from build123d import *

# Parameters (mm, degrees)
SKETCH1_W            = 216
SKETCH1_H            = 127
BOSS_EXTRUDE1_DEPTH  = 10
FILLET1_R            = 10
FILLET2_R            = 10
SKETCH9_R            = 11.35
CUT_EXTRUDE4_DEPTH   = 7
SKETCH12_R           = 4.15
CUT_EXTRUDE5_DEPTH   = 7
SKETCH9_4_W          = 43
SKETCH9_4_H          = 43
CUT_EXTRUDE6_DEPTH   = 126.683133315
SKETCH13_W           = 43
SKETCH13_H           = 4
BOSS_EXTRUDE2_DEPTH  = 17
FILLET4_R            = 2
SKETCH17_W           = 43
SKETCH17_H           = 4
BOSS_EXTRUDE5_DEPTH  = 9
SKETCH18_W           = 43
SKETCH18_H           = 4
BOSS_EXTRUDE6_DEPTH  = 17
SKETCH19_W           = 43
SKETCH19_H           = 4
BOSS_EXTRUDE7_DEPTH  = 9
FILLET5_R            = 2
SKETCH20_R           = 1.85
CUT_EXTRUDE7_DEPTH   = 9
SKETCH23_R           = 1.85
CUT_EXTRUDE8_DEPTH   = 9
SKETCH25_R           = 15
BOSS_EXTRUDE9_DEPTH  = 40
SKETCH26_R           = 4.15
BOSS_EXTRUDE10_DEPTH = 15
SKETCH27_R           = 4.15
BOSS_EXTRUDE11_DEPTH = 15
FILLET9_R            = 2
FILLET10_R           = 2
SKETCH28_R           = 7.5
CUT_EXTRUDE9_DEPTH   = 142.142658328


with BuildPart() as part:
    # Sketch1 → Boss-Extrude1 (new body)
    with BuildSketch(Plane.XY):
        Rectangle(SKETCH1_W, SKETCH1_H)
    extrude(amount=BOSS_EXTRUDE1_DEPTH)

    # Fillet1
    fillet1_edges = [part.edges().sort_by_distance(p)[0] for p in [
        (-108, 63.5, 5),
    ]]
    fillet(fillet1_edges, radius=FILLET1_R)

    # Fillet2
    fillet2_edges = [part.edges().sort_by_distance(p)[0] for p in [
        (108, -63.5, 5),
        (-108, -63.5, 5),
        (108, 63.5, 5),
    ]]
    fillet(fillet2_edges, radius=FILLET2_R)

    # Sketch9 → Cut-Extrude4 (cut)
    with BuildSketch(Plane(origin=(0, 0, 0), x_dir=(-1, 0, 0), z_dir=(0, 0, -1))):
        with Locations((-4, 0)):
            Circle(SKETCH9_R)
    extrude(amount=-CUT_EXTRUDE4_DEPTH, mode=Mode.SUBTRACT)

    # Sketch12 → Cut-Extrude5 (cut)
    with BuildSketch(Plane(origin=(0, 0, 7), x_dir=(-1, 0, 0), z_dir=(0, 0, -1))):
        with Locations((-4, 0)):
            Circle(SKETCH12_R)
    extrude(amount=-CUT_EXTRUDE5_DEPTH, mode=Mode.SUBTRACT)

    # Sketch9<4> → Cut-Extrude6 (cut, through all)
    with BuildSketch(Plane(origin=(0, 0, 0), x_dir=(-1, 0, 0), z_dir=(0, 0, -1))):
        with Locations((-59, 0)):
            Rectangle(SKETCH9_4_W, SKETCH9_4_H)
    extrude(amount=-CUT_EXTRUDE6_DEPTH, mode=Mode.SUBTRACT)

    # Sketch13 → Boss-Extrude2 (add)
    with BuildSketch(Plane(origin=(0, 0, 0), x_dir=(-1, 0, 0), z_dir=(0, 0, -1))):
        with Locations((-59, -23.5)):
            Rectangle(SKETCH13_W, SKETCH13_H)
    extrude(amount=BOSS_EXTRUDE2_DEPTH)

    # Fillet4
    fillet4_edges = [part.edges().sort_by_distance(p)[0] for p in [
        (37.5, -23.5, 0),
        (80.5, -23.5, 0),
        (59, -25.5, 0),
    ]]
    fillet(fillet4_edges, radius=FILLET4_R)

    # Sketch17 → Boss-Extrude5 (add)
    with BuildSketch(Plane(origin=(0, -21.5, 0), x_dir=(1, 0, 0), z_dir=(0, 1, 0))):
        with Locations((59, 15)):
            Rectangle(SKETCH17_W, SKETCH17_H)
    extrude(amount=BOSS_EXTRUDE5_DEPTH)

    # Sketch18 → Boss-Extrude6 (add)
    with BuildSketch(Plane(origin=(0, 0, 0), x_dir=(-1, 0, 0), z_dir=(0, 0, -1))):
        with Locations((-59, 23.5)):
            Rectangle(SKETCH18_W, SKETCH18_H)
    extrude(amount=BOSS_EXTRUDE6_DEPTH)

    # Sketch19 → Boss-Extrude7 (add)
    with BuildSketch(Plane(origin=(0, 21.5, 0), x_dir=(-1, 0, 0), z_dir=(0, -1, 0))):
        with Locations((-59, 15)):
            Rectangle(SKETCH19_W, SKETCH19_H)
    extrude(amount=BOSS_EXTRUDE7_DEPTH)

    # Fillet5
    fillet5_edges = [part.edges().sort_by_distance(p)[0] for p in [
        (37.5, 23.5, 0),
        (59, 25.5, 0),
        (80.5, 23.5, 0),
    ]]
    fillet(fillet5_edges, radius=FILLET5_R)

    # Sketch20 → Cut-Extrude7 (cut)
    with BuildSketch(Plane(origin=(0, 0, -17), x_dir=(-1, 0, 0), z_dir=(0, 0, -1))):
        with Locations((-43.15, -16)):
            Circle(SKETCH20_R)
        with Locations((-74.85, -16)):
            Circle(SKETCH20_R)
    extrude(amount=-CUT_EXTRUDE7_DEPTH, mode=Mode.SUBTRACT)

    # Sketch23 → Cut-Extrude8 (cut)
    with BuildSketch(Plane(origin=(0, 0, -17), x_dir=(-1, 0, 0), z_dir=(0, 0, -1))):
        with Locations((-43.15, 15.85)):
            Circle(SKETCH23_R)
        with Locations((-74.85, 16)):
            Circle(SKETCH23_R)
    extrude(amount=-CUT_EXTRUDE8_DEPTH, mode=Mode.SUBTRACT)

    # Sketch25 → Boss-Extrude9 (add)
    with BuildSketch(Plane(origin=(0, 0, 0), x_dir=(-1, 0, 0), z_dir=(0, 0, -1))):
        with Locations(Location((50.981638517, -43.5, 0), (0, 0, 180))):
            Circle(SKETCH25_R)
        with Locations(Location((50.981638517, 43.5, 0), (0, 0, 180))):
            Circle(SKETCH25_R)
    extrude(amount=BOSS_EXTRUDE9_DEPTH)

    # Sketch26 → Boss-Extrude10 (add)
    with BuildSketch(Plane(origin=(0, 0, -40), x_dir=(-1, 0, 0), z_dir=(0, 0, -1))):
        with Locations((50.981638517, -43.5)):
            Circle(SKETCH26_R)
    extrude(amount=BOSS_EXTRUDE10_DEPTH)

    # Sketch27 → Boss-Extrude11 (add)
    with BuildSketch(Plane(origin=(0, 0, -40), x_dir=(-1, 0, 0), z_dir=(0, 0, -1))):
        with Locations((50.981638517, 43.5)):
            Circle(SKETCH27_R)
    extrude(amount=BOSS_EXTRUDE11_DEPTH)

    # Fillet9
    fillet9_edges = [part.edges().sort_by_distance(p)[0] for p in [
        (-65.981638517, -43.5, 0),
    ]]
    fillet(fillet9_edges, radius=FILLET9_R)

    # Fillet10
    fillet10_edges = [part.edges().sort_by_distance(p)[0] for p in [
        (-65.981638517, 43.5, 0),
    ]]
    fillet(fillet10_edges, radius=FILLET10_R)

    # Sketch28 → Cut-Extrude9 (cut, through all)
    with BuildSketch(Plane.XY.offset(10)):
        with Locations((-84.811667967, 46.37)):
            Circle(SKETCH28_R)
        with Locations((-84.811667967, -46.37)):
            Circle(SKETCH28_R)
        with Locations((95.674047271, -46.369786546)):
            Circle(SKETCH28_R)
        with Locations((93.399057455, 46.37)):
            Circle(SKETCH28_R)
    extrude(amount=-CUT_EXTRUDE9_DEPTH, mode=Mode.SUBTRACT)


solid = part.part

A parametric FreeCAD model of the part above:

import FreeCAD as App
import Part
import Sketcher

V = App.Vector
Q = App.Units.Quantity


def edges_at(feature, points):
    """Names of the edges that pass closest to the given points."""
    edges = feature.Shape.Edges
    near = lambda p: min(range(len(edges)), key=lambda i: edges[i].distToShape(Part.Vertex(*p))[0])
    return sorted({f"Edge{near(p) + 1}" for p in points})

doc = App.newDocument("Part")
body = doc.addObject("PartDesign::Body", "Body")

# Sketch on XY plane
sketch1 = doc.addObject("Sketcher::SketchObject", "Sketch")
body.addObject(sketch1)
sketch1.AttachmentSupport = (doc.XY_Plane, [""])
sketch1.MapMode = "FlatFace"
sketch1.addGeometry([
    Part.LineSegment(V(-108, 64, 0), V(-108, -64, 0)),
    Part.LineSegment(V(-108, -64, 0), V(108, -64, 0)),
    Part.LineSegment(V(108, -64, 0), V(108, 64, 0)),
    Part.LineSegment(V(108, 64, 0), V(-108, 64, 0)),
], False)
sketch1.addConstraint([
    Sketcher.Constraint("Coincident", 0, 2, 1, 1),
    Sketcher.Constraint("Coincident", 1, 2, 2, 1),
    Sketcher.Constraint("Coincident", 2, 2, 3, 1),
    Sketcher.Constraint("Coincident", 3, 2, 0, 1),
    Sketcher.Constraint("Vertical", 0),
    Sketcher.Constraint("Horizontal", 1),
    Sketcher.Constraint("Vertical", 2),
    Sketcher.Constraint("Horizontal", 3),
    Sketcher.Constraint("Symmetric", 0, 2, 2, 2, -1, 1),
    Sketcher.Constraint("DistanceX", 1, 1, 1, 2, Q("216 mm")),
    Sketcher.Constraint("DistanceY", 0, 2, 0, 1, Q("127 mm")),
])
pad1 = doc.addObject("PartDesign::Pad", "Pad")
body.addObject(pad1)
pad1.Profile = sketch1
pad1.Length = 10
doc.recompute()

fillet = doc.addObject("PartDesign::Fillet", "Fillet")
body.addObject(fillet)
fillet.Base = (pad1, edges_at(pad1, [(-108, 63.5, 5)]))
fillet.Radius = 10
doc.recompute()

fillet2 = doc.addObject("PartDesign::Fillet", "Fillet001")
body.addObject(fillet2)
fillet2.Base = (fillet, edges_at(fillet, [(108, -63.5, 5), (-108, -63.5, 5), (108, 63.5, 5)]))
fillet2.Radius = 10

# Sketch on XY plane
sketch2 = doc.addObject("Sketcher::SketchObject", "Sketch001")
body.addObject(sketch2)
sketch2.AttachmentSupport = (doc.XY_Plane, [""])
sketch2.MapMode = "FlatFace"
sketch2.addGeometry(Part.Circle(V(4, 0, 0), V(0, 0, 1), 11), False)
sketch2.addConstraint([
    Sketcher.Constraint("PointOnObject", 0, 3, -1),
    Sketcher.Constraint("Diameter", 0, Q("22.7 mm")),
    Sketcher.Constraint("DistanceX", -1, 1, 0, 3, Q("4 mm")),
])
pocket1 = doc.addObject("PartDesign::Pocket", "Pocket")
body.addObject(pocket1)
pocket1.Profile = sketch2
pocket1.Length = 7
pocket1.Reversed = True

# Sketch on XY plane
sketch3 = doc.addObject("Sketcher::SketchObject", "Sketch002")
body.addObject(sketch3)
sketch3.AttachmentSupport = (doc.XY_Plane, [""])
sketch3.MapMode = "FlatFace"
sketch3.AttachmentOffset = App.Placement(V(0, 0, 7), App.Rotation())
sketch3.addGeometry(Part.Circle(V(4, 0, 0), V(0, 0, 1), 4.2), False)
sketch3.addConstraint([
    Sketcher.Constraint("PointOnObject", 0, 3, -1),
    Sketcher.Constraint("Diameter", 0, Q("8.3 mm")),
    Sketcher.Constraint("DistanceX", -1, 1, 0, 3, Q("4 mm")),
])
pocket2 = doc.addObject("PartDesign::Pocket", "Pocket001")
body.addObject(pocket2)
pocket2.Profile = sketch3
pocket2.Length = 7
pocket2.Reversed = True

# Sketch on XY plane
sketch4 = doc.addObject("Sketcher::SketchObject", "Sketch003")
body.addObject(sketch4)
sketch4.AttachmentSupport = (doc.XY_Plane, [""])
sketch4.MapMode = "FlatFace"
sketch4.addGeometry([
    Part.LineSegment(V(80, 22, 0), V(80, -22, 0)),
    Part.LineSegment(V(80, -22, 0), V(38, -22, 0)),
    Part.LineSegment(V(38, -22, 0), V(38, 22, 0)),
    Part.LineSegment(V(38, 22, 0), V(80, 22, 0)),
], False)
sketch4.addConstraint([
    Sketcher.Constraint("Coincident", 0, 2, 1, 1),
    Sketcher.Constraint("Coincident", 1, 2, 2, 1),
    Sketcher.Constraint("Coincident", 2, 2, 3, 1),
    Sketcher.Constraint("Coincident", 3, 2, 0, 1),
    Sketcher.Constraint("Vertical", 0),
    Sketcher.Constraint("Horizontal", 1),
    Sketcher.Constraint("Vertical", 2),
    Sketcher.Constraint("Horizontal", 3),
    Sketcher.Constraint("Equal", 3, 0),
    Sketcher.Constraint("DistanceX", 1, 2, 1, 1, Q("43 mm")),
    Sketcher.Constraint("DistanceX", -1, 1, 0, 2, Q("80.5 mm")),
    Sketcher.Constraint("DistanceY", 0, 2, -1, 1, Q("21.5 mm")),
])
pocket3 = doc.addObject("PartDesign::Pocket", "Pocket002")
body.addObject(pocket3)
pocket3.Profile = sketch4
pocket3.Type = "ThroughAll"
pocket3.Reversed = True

# Sketch on XY plane
sketch5 = doc.addObject("Sketcher::SketchObject", "Sketch004")
body.addObject(sketch5)
sketch5.AttachmentSupport = (doc.XY_Plane, [""])
sketch5.MapMode = "FlatFace"
sketch5.addGeometry([
    Part.LineSegment(V(80.5, -21.5, 0), V(80.5, -25.5, 0)),
    Part.LineSegment(V(80.5, -25.5, 0), V(37.5, -25.5, 0)),
    Part.LineSegment(V(37.5, -25.5, 0), V(37.5, -21.5, 0)),
    Part.LineSegment(V(37.5, -21.5, 0), V(80.5, -21.5, 0)),
], False)
sketch5.addConstraint([
    Sketcher.Constraint("Coincident", 0, 2, 1, 1),
    Sketcher.Constraint("Coincident", 1, 2, 2, 1),
    Sketcher.Constraint("Coincident", 2, 2, 3, 1),
    Sketcher.Constraint("Coincident", 3, 2, 0, 1),
    Sketcher.Constraint("Vertical", 0),
    Sketcher.Constraint("Horizontal", 1),
    Sketcher.Constraint("Vertical", 2),
    Sketcher.Constraint("Horizontal", 3),
    Sketcher.Constraint("DistanceX", 1, 2, 1, 1, Q("43 mm")),
    Sketcher.Constraint("DistanceY", 0, 2, 0, 1, Q("4 mm")),
    Sketcher.Constraint("DistanceX", -1, 1, 0, 2, Q("80.5 mm")),
    Sketcher.Constraint("DistanceY", 0, 2, -1, 1, Q("25.5 mm")),
])
pad2 = doc.addObject("PartDesign::Pad", "Pad001")
body.addObject(pad2)
pad2.Profile = sketch5
pad2.Length = 17
pad2.Reversed = True
doc.recompute()

fillet3 = doc.addObject("PartDesign::Fillet", "Fillet002")
body.addObject(fillet3)
fillet3.Base = (pad2, edges_at(pad2, [(37.5, -23.5, 0), (80.5, -23.5, 0), (59, -25.5, 0)]))
fillet3.Radius = 2

# Sketch on XZ plane
sketch6 = doc.addObject("Sketcher::SketchObject", "Sketch005")
body.addObject(sketch6)
sketch6.AttachmentSupport = (doc.XZ_Plane, [""])
sketch6.MapMode = "FlatFace"
sketch6.AttachmentOffset = App.Placement(V(0, 0, 21.5), App.Rotation())
sketch6.addGeometry([
    Part.LineSegment(V(37.5, -17, 0), V(37.5, -13, 0)),
    Part.LineSegment(V(37.5, -13, 0), V(80.5, -13, 0)),
    Part.LineSegment(V(80.5, -13, 0), V(80.5, -17, 0)),
    Part.LineSegment(V(80.5, -17, 0), V(37.5, -17, 0)),
], False)
sketch6.addConstraint([
    Sketcher.Constraint("Coincident", 0, 2, 1, 1),
    Sketcher.Constraint("Coincident", 1, 2, 2, 1),
    Sketcher.Constraint("Coincident", 2, 2, 3, 1),
    Sketcher.Constraint("Coincident", 3, 2, 0, 1),
    Sketcher.Constraint("Vertical", 0),
    Sketcher.Constraint("Horizontal", 1),
    Sketcher.Constraint("Vertical", 2),
    Sketcher.Constraint("Horizontal", 3),
    Sketcher.Constraint("DistanceX", 1, 1, 1, 2, Q("43 mm")),
    Sketcher.Constraint("DistanceY", 0, 1, 0, 2, Q("4 mm")),
    Sketcher.Constraint("DistanceY", 0, 2, -1, 1, Q("13 mm")),
    Sketcher.Constraint("DistanceX", -1, 1, 0, 2, Q("37.5 mm")),
])
pad3 = doc.addObject("PartDesign::Pad", "Pad002")
body.addObject(pad3)
pad3.Profile = sketch6
pad3.Length = 9
pad3.Reversed = True

# Sketch on XY plane
sketch7 = doc.addObject("Sketcher::SketchObject", "Sketch006")
body.addObject(sketch7)
sketch7.AttachmentSupport = (doc.XY_Plane, [""])
sketch7.MapMode = "FlatFace"
sketch7.addGeometry([
    Part.LineSegment(V(80.5, 25.5, 0), V(80.5, 21.5, 0)),
    Part.LineSegment(V(80.5, 21.5, 0), V(37.5, 21.5, 0)),
    Part.LineSegment(V(37.5, 21.5, 0), V(37.5, 25.5, 0)),
    Part.LineSegment(V(37.5, 25.5, 0), V(80.5, 25.5, 0)),
], False)
sketch7.addConstraint([
    Sketcher.Constraint("Coincident", 0, 2, 1, 1),
    Sketcher.Constraint("Coincident", 1, 2, 2, 1),
    Sketcher.Constraint("Coincident", 2, 2, 3, 1),
    Sketcher.Constraint("Coincident", 3, 2, 0, 1),
    Sketcher.Constraint("Vertical", 0),
    Sketcher.Constraint("Horizontal", 1),
    Sketcher.Constraint("Vertical", 2),
    Sketcher.Constraint("Horizontal", 3),
    Sketcher.Constraint("DistanceX", 1, 2, 1, 1, Q("43 mm")),
    Sketcher.Constraint("DistanceY", 0, 2, 0, 1, Q("4 mm")),
    Sketcher.Constraint("DistanceX", -1, 1, 0, 2, Q("80.5 mm")),
    Sketcher.Constraint("DistanceY", -1, 1, 0, 2, Q("21.5 mm")),
])
pad4 = doc.addObject("PartDesign::Pad", "Pad003")
body.addObject(pad4)
pad4.Profile = sketch7
pad4.Length = 17
pad4.Reversed = True

# Sketch on XZ plane
sketch8 = doc.addObject("Sketcher::SketchObject", "Sketch007")
body.addObject(sketch8)
sketch8.AttachmentSupport = (doc.XZ_Plane, [""])
sketch8.MapMode = "FlatFace"
sketch8.AttachmentOffset = App.Placement(V(0, 0, -21.5), App.Rotation())
sketch8.addGeometry([
    Part.LineSegment(V(80.5, -17, 0), V(80.5, -13, 0)),
    Part.LineSegment(V(80.5, -13, 0), V(37.5, -13, 0)),
    Part.LineSegment(V(37.5, -13, 0), V(37.5, -17, 0)),
    Part.LineSegment(V(37.5, -17, 0), V(80.5, -17, 0)),
], False)
sketch8.addConstraint([
    Sketcher.Constraint("Coincident", 0, 2, 1, 1),
    Sketcher.Constraint("Coincident", 1, 2, 2, 1),
    Sketcher.Constraint("Coincident", 2, 2, 3, 1),
    Sketcher.Constraint("Coincident", 3, 2, 0, 1),
    Sketcher.Constraint("Vertical", 0),
    Sketcher.Constraint("Horizontal", 1),
    Sketcher.Constraint("Vertical", 2),
    Sketcher.Constraint("Horizontal", 3),
    Sketcher.Constraint("DistanceX", 1, 2, 1, 1, Q("43 mm")),
    Sketcher.Constraint("DistanceY", 0, 1, 0, 2, Q("4 mm")),
    Sketcher.Constraint("DistanceY", 0, 2, -1, 1, Q("13 mm")),
    Sketcher.Constraint("DistanceX", -1, 1, 0, 2, Q("80.5 mm")),
])
pad5 = doc.addObject("PartDesign::Pad", "Pad004")
body.addObject(pad5)
pad5.Profile = sketch8
pad5.Length = 9
doc.recompute()

fillet4 = doc.addObject("PartDesign::Fillet", "Fillet003")
body.addObject(fillet4)
fillet4.Base = (pad5, edges_at(pad5, [(37.5, 23.5, 0), (59, 25.5, 0), (80.5, 23.5, 0)]))
fillet4.Radius = 2

# Sketch on XY plane
sketch9 = doc.addObject("Sketcher::SketchObject", "Sketch008")
body.addObject(sketch9)
sketch9.AttachmentSupport = (doc.XY_Plane, [""])
sketch9.MapMode = "FlatFace"
sketch9.AttachmentOffset = App.Placement(V(0, 0, -17), App.Rotation())
sketch9.addGeometry([
    Part.Circle(V(43.1, -16, 0), V(0, 0, 1), 1.9),
    Part.Circle(V(74.8, -16, 0), V(0, 0, 1), 1.9),
], False)
sketch9.addConstraint([
    Sketcher.Constraint("Equal", 0, 1),
    Sketcher.Constraint("Horizontal", 0, 3, 1, 3),
    Sketcher.Constraint("Diameter", 0, Q("3.7 mm")),
    Sketcher.Constraint("DistanceY", 0, 3, -1, 1, Q("16 mm")),
    Sketcher.Constraint("DistanceX", 0, 3, 1, 3, Q("31.7 mm")),
    Sketcher.Constraint("DistanceX", -1, 1, 0, 3, Q("43.15 mm")),
])
pocket4 = doc.addObject("PartDesign::Pocket", "Pocket003")
body.addObject(pocket4)
pocket4.Profile = sketch9
pocket4.Length = 9
pocket4.Reversed = True

# Sketch on XY plane
sketch10 = doc.addObject("Sketcher::SketchObject", "Sketch009")
body.addObject(sketch10)
sketch10.AttachmentSupport = (doc.XY_Plane, [""])
sketch10.MapMode = "FlatFace"
sketch10.AttachmentOffset = App.Placement(V(0, 0, -17), App.Rotation())
sketch10.addGeometry([
    Part.Circle(V(43.1, 15.8, 0), V(0, 0, 1), 1.9),
    Part.Circle(V(74.8, 16, 0), V(0, 0, 1), 1.9),
], False)
sketch10.addConstraint([
    Sketcher.Constraint("Equal", 0, 1),
    Sketcher.Constraint("Diameter", 0, Q("3.7 mm")),
    Sketcher.Constraint("DistanceY", -1, 1, 1, 3, Q("16 mm")),
    Sketcher.Constraint("DistanceX", 0, 3, 1, 3, Q("31.7 mm")),
    Sketcher.Constraint("DistanceX", -1, 1, 0, 3, Q("43.15 mm")),
    Sketcher.Constraint("DistanceY", -1, 1, 0, 3, Q("15.85 mm")),
])
pocket5 = doc.addObject("PartDesign::Pocket", "Pocket004")
body.addObject(pocket5)
pocket5.Profile = sketch10
pocket5.Length = 9
pocket5.Reversed = True

# Sketch on XY plane
sketch11 = doc.addObject("Sketcher::SketchObject", "Sketch010")
body.addObject(sketch11)
sketch11.AttachmentSupport = (doc.XY_Plane, [""])
sketch11.MapMode = "FlatFace"
sketch11.addGeometry([
    Part.Circle(V(-51, -44, 0), V(0, 0, 1), 15),
    Part.Circle(V(-51, 44, 0), V(0, 0, 1), 15),
], False)
sketch11.addConstraint([
    Sketcher.Constraint("Equal", 0, 1),
    Sketcher.Constraint("Symmetric", 0, 3, 1, 3, -1),
    Sketcher.Constraint("Diameter", 0, Q("30 mm")),
    Sketcher.Constraint("DistanceY", 0, 3, 1, 3, Q("87 mm")),
    Sketcher.Constraint("DistanceX", 0, 3, -1, 1, Q("50.981639 mm")),
])
pad6 = doc.addObject("PartDesign::Pad", "Pad005")
body.addObject(pad6)
pad6.Profile = sketch11
pad6.Length = 40
pad6.Reversed = True

# Sketch on XY plane
sketch12 = doc.addObject("Sketcher::SketchObject", "Sketch011")
body.addObject(sketch12)
sketch12.AttachmentSupport = (doc.XY_Plane, [""])
sketch12.MapMode = "FlatFace"
sketch12.AttachmentOffset = App.Placement(V(0, 0, -40), App.Rotation())
sketch12.addGeometry(Part.Circle(V(-51, -43.5, 0), V(0, 0, 1), 4.2), False)
sketch12.addConstraint([
    Sketcher.Constraint("Diameter", 0, Q("8.3 mm")),
    Sketcher.Constraint("DistanceY", 0, 3, -1, 1, Q("43.5 mm")),
    Sketcher.Constraint("DistanceX", 0, 3, -1, 1, Q("50.981639 mm")),
])
pad7 = doc.addObject("PartDesign::Pad", "Pad006")
body.addObject(pad7)
pad7.Profile = sketch12
pad7.Length = 15
pad7.Reversed = True

# Sketch on XY plane
sketch13 = doc.addObject("Sketcher::SketchObject", "Sketch012")
body.addObject(sketch13)
sketch13.AttachmentSupport = (doc.XY_Plane, [""])
sketch13.MapMode = "FlatFace"
sketch13.AttachmentOffset = App.Placement(V(0, 0, -40), App.Rotation())
sketch13.addGeometry(Part.Circle(V(-51, 43.5, 0), V(0, 0, 1), 4.2), False)
sketch13.addConstraint([
    Sketcher.Constraint("Diameter", 0, Q("8.3 mm")),
    Sketcher.Constraint("DistanceY", -1, 1, 0, 3, Q("43.5 mm")),
    Sketcher.Constraint("DistanceX", 0, 3, -1, 1, Q("50.981639 mm")),
])
pad8 = doc.addObject("PartDesign::Pad", "Pad007")
body.addObject(pad8)
pad8.Profile = sketch13
pad8.Length = 15
pad8.Reversed = True
doc.recompute()

fillet5 = doc.addObject("PartDesign::Fillet", "Fillet004")
body.addObject(fillet5)
fillet5.Base = (pad8, edges_at(pad8, [(-65.982, -43.5, 0)]))
fillet5.Radius = 2
doc.recompute()

fillet6 = doc.addObject("PartDesign::Fillet", "Fillet005")
body.addObject(fillet6)
fillet6.Base = (fillet5, edges_at(fillet5, [(-65.982, 43.5, 0)]))
fillet6.Radius = 2

# Sketch on XY plane
sketch14 = doc.addObject("Sketcher::SketchObject", "Sketch013")
body.addObject(sketch14)
sketch14.AttachmentSupport = (doc.XY_Plane, [""])
sketch14.MapMode = "FlatFace"
sketch14.AttachmentOffset = App.Placement(V(0, 0, 10), App.Rotation())
sketch14.addGeometry([
    Part.Circle(V(-85, 46, 0), V(0, 0, 1), 8),
    Part.Circle(V(-85, -46, 0), V(0, 0, 1), 8),
    Part.Circle(V(96, -46, 0), V(0, 0, 1), 8),
    Part.Circle(V(93, 46, 0), V(0, 0, 1), 8),
], False)
sketch14.addConstraint([
    Sketcher.Constraint("Equal", 0, 1),
    Sketcher.Constraint("Equal", 1, 2),
    Sketcher.Constraint("Equal", 2, 3),
    Sketcher.Constraint("Symmetric", 0, 3, 1, 3, -1),
    Sketcher.Constraint("Horizontal", 0, 3, 3, 3),
    Sketcher.Constraint("Diameter", 0, Q("15 mm")),
    Sketcher.Constraint("DistanceY", -1, 1, 0, 3, Q("46.37 mm")),
    Sketcher.Constraint("DistanceX", 3, 3, 2, 3, Q("2.27499 mm")),
    Sketcher.Constraint("DistanceX", 0, 3, -1, 1, Q("84.811668 mm")),
    Sketcher.Constraint("DistanceX", -1, 1, 2, 3, Q("95.674047 mm")),
    Sketcher.Constraint("DistanceY", 2, 3, -1, 1, Q("46.369787 mm")),
])
pocket6 = doc.addObject("PartDesign::Pocket", "Pocket005")
body.addObject(pocket6)
pocket6.Profile = sketch14
pocket6.Type = "ThroughAll"

doc.recompute()
